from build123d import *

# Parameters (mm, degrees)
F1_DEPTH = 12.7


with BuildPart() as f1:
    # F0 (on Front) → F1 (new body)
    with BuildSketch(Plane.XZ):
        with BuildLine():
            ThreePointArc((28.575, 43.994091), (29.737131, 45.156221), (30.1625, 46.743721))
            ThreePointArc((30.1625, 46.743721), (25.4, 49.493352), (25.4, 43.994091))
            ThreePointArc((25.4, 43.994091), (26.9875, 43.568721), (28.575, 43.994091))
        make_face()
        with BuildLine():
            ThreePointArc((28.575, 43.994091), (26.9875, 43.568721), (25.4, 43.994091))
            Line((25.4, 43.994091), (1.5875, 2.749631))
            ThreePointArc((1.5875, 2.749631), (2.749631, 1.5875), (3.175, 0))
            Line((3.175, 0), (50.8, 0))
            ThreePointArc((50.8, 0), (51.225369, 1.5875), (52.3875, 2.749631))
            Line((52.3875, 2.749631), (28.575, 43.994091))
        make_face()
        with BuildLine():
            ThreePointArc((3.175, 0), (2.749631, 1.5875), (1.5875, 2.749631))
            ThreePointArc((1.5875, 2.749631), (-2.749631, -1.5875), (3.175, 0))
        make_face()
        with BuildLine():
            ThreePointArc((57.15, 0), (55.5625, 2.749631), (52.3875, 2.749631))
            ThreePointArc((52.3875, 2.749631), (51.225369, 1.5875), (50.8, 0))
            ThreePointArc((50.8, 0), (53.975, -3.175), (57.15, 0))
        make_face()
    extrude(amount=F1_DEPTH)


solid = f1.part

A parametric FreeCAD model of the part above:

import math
import FreeCAD as App
import Part
import Sketcher

V = App.Vector
Q = App.Units.Quantity

doc = App.newDocument("Part")
body = doc.addObject("PartDesign::Body", "Body")

sketch1 = doc.addObject("Sketcher::SketchObject", "Sketch")
body.addObject(sketch1)
sketch1.AttachmentSupport = (doc.XZ_Plane, [""])
sketch1.MapMode = "FlatFace"
sketch1.addGeometry(Part.ArcOfCircle(Part.Circle(V(26.987504, 46.743719, 0), V(0, 0, 1), 3.174996), math.radians(-60.000042), math.radians(0.00003)), False)
sketch1.addGeometry(Part.ArcOfCircle(Part.Circle(V(26.9875, 46.743721, 0), V(0, 0, 1), 3.175), math.radians(-0.000009), math.radians(239.999997)), False)
sketch1.addGeometry(Part.LineSegment(V(25.4, 43.994091, 0), V(1.5875, 2.749631, 0)), False)
sketch1.addGeometry(Part.ArcOfCircle(Part.Circle(V(0, 0, 0), V(0, 0, 1), 3.175), math.radians(59.999998), math.radians(359.999996)), False)
sketch1.addGeometry(Part.LineSegment(V(3.175, 0, 0), V(50.8, 0, 0)), False)
sketch1.addGeometry(Part.ArcOfCircle(Part.Circle(V(53.975, 0, 0), V(0, 0, 1), 3.175), math.radians(180), math.radians(360)), False)
sketch1.addGeometry(Part.ArcOfCircle(Part.Circle(V(53.975, 0, 0), V(0, 0, 1), 3.175), math.radians(-0.000006), math.radians(120)), False)
sketch1.addGeometry(Part.LineSegment(V(52.3875, 2.749631, 0), V(28.575, 43.994091, 0)), False)
sketch1.addConstraint(Sketcher.Constraint("Tangent", 0, 2, 1, 1))
sketch1.addConstraint(Sketcher.Constraint("Coincident", 1, 2, 2, 1))
sketch1.addConstraint(Sketcher.Constraint("Coincident", 2, 2, 3, 1))
sketch1.addConstraint(Sketcher.Constraint("Coincident", 3, 2, 4, 1))
sketch1.addConstraint(Sketcher.Constraint("Coincident", 4, 2, 5, 1))
sketch1.addConstraint(Sketcher.Constraint("Tangent", 5, 2, 6, 1))
sketch1.addConstraint(Sketcher.Constraint("Coincident", 6, 2, 7, 1))
sketch1.addConstraint(Sketcher.Constraint("Coincident", 7, 2, 0, 1))
sketch1.addConstraint(Sketcher.Constraint("Horizontal", 4))
sketch1.addConstraint(Sketcher.Constraint("Coincident", 3, 3, -1, 1))
sketch1.addConstraint(Sketcher.Constraint("Equal", 1, 3))
sketch1.addConstraint(Sketcher.Constraint("Equal", 3, 5))
sketch1.addConstraint(Sketcher.Constraint("Equal", 5, 6))
sketch1.addConstraint(Sketcher.Constraint("PointOnObject", 5, 3, -1))
sketch1.addConstraint(Sketcher.Constraint("PointOnObject", 3, 2, -1))
sketch1.addConstraint(Sketcher.Constraint("PointOnObject", 5, 2, -1))
sketch1.addConstraint(Sketcher.Constraint("Horizontal", 1, 3, 0, 2))
sketch1.addConstraint(Sketcher.Constraint("Horizontal", 2, 2, 6, 2))
sketch1.addConstraint(Sketcher.Constraint("Horizontal", 1, 2, 7, 2))
sketch1.addConstraint(Sketcher.Constraint("Equal", 2, 7))
sketch1.addConstraint(Sketcher.Constraint("DistanceX", -1, 1, 1, 2, Q("1 in")))
sketch1.addConstraint(Sketcher.Constraint("DistanceX", -1, 1, 4, 2, Q("2 in")))
sketch1.addConstraint(Sketcher.Constraint("Angle", 2, Q("-120 deg")))
sketch1.addConstraint(Sketcher.Constraint("Radius", 0, Q("0.1249998 in")))
sketch1.addConstraint(Sketcher.Constraint("Radius", 1, Q("0.125 in")))
sketch1.addConstraint(Sketcher.Constraint("DistanceX", 2, 2, 1, 3, Q("1 in")))
pad1 = doc.addObject("PartDesign::Pad", "Pad")
body.addObject(pad1)
pad1.Profile = sketch1
pad1.Length = Q("0.5 in")

doc.recompute()
